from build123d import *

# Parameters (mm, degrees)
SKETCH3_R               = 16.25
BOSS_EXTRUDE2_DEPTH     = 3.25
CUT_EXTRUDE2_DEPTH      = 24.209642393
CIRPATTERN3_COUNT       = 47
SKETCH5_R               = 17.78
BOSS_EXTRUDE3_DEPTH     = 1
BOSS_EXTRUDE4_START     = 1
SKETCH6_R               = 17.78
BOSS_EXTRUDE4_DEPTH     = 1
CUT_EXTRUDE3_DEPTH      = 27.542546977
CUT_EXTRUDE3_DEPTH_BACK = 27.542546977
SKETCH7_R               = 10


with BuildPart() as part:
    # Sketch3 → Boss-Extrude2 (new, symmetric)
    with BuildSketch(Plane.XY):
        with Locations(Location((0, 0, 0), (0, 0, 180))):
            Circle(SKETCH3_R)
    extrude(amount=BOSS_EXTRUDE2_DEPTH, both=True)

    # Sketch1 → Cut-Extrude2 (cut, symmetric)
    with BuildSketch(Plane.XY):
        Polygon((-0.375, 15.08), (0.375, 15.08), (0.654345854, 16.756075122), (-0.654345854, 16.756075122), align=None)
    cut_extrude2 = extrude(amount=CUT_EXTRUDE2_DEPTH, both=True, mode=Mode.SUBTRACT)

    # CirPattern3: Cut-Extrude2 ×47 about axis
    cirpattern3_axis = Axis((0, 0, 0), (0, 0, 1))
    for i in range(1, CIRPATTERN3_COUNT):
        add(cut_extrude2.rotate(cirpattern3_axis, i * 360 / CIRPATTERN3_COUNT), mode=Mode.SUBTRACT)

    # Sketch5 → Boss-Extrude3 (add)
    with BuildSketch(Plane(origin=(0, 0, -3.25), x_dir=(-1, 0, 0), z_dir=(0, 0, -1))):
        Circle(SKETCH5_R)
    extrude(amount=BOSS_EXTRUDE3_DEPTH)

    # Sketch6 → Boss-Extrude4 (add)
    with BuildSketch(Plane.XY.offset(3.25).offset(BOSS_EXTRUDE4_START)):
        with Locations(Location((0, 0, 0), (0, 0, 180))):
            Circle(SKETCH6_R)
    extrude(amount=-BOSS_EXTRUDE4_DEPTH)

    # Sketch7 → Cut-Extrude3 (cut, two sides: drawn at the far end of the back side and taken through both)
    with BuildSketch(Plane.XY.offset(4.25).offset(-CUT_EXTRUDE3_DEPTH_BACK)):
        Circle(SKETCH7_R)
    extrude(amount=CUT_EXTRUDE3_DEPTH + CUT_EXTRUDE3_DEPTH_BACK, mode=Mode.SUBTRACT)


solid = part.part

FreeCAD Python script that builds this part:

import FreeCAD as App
import Part
import Sketcher

V = App.Vector
Q = App.Units.Quantity

doc = App.newDocument("Part")
params = doc.addObject("Spreadsheet::Sheet", "Params")
for row, (alias, value) in enumerate([
    ("sketch1_diameter", "32.5 mm"),
    ("pad1_length", "6.5 mm"),
    ("sketch2_width", "0.75 mm"),
    ("pocket1_length", "48.419285 mm"),
    ("sketch3_diameter", "35.56 mm"),
    ("pad2_length", "1 mm"),
    ("sketch4_diameter", "35.56 mm"),
    ("pad3_length", "1 mm"),
    ("sketch5_diameter", "20 mm"),
], start=1):
    params.set(f"A{row}", alias)
    params.set(f"B{row}", "=" + value)
    params.setAlias(f"B{row}", alias)

body = doc.addObject("PartDesign::Body", "Body")

sketch1 = body.newObject("Sketcher::SketchObject", "Sketch")
sketch1.AttachmentSupport = (doc.getObject("XY_Plane"), [""])
sketch1.MapMode = "FlatFace"
sketch1.addGeometry(Part.Circle(V(0, 0, 0), V(0, 0, 1), 16), False)
sketch1.addConstraint(Sketcher.Constraint("Coincident", 0, 3, -1, 1))
sketch1.addConstraint(Sketcher.Constraint("Diameter", 0, Q("32.5 mm")))
sketch1.setExpression("Constraints[1]", "Params.sketch1_diameter")
pad1 = body.newObject("PartDesign::Pad", "Pad")
pad1.Profile = sketch1
pad1.setExpression("Length", "Params.pad1_length")
pad1.Midplane = True

sketch2 = body.newObject("Sketcher::SketchObject", "Sketch001")
sketch2.AttachmentSupport = (doc.getObject("XY_Plane"), [""])
sketch2.MapMode = "FlatFace"
sketch2.addGeometry(Part.LineSegment(V(-0.4, 15.1, 0), V(0.4, 15.1, 0)), False)
sketch2.addGeometry(Part.LineSegment(V(0.4, 15.1, 0), V(0.7, 16.8, 0)), False)
sketch2.addGeometry(Part.LineSegment(V(0.7, 16.8, 0), V(-0.7, 16.8, 0)), False)
sketch2.addGeometry(Part.LineSegment(V(-0.7, 16.8, 0), V(-0.4, 15.1, 0)), False)
sketch2.addConstraint(Sketcher.Constraint("Coincident", 0, 2, 1, 1))
sketch2.addConstraint(Sketcher.Constraint("Coincident", 1, 2, 2, 1))
sketch2.addConstraint(Sketcher.Constraint("Coincident", 2, 2, 3, 1))
sketch2.addConstraint(Sketcher.Constraint("Coincident", 3, 2, 0, 1))
sketch2.addConstraint(Sketcher.Constraint("Horizontal", 0))
sketch2.addConstraint(Sketcher.Constraint("Horizontal", 2))
sketch2.addConstraint(Sketcher.Constraint("Equal", 1, 3))
sketch2.addConstraint(Sketcher.Constraint("DistanceX", 0, 1, 0, 2, Q("0.75 mm")))
sketch2.addConstraint(Sketcher.Constraint("DistanceY", -1, 1, 0, 2, Q("15.08 mm")))
sketch2.addConstraint(Sketcher.Constraint("DistanceX", -1, 1, 0, 2, Q("0.375 mm")))
sketch2.addConstraint(Sketcher.Constraint("DistanceX", 2, 2, 2, 1, Q("1.308692 mm")))
sketch2.addConstraint(Sketcher.Constraint("Distance", 1, Q("1.699194 mm")))
sketch2.setExpression("Constraints[7]", "Params.sketch2_width")
pocket1 = body.newObject("PartDesign::Pocket", "Pocket")
pocket1.Profile = sketch2
pocket1.setExpression("Length", "Params.pocket1_length")
pocket1.Midplane = True
doc.recompute()

polarpattern = body.newObject("PartDesign::PolarPattern", "PolarPattern")
polarpattern.Originals = [pocket1]
polarpattern.Axis = (doc.getObject("Z_Axis"), [""])
polarpattern.Angle = 360
polarpattern.Occurrences = 47
body.Tip = polarpattern

sketch3 = body.newObject("Sketcher::SketchObject", "Sketch002")
sketch3.AttachmentSupport = (doc.getObject("XY_Plane"), [""])
sketch3.MapMode = "FlatFace"
sketch3.AttachmentOffset = App.Placement(V(0, 0, -3.25), App.Rotation())
sketch3.addGeometry(Part.Circle(V(0, 0, 0), V(0, 0, 1), 18), False)
sketch3.addConstraint(Sketcher.Constraint("Coincident", 0, 3, -1, 1))
sketch3.addConstraint(Sketcher.Constraint("Diameter", 0, Q("35.56 mm")))
sketch3.setExpression("Constraints[1]", "Params.sketch3_diameter")
pad2 = body.newObject("PartDesign::Pad", "Pad001")
pad2.Profile = sketch3
pad2.setExpression("Length", "Params.pad2_length")
pad2.Reversed = True

sketch4 = body.newObject("Sketcher::SketchObject", "Sketch003")
sketch4.AttachmentSupport = (doc.getObject("XY_Plane"), [""])
sketch4.MapMode = "FlatFace"
sketch4.AttachmentOffset = App.Placement(V(0, 0, 4.25), App.Rotation())
sketch4.addGeometry(Part.Circle(V(0, 0, 0), V(0, 0, 1), 18), False)
sketch4.addConstraint(Sketcher.Constraint("Coincident", 0, 3, -1, 1))
sketch4.addConstraint(Sketcher.Constraint("Diameter", 0, Q("35.56 mm")))
sketch4.setExpression("Constraints[1]", "Params.sketch4_diameter")
pad3 = body.newObject("PartDesign::Pad", "Pad002")
pad3.Profile = sketch4
pad3.setExpression("Length", "Params.pad3_length")
pad3.Reversed = True

sketch5 = body.newObject("Sketcher::SketchObject", "Sketch004")
sketch5.AttachmentSupport = (doc.getObject("XY_Plane"), [""])
sketch5.MapMode = "FlatFace"
sketch5.AttachmentOffset = App.Placement(V(0, 0, 4.25), App.Rotation())
sketch5.addGeometry(Part.Circle(V(0, 0, 0), V(0, 0, 1), 10), False)
sketch5.addConstraint(Sketcher.Constraint("Coincident", 0, 3, -1, 1))
sketch5.addConstraint(Sketcher.Constraint("Diameter", 0, Q("20 mm")))
sketch5.setExpression("Constraints[1]", "Params.sketch5_diameter")
pocket2 = body.newObject("PartDesign::Pocket", "Pocket001")
pocket2.Profile = sketch5
pocket2.Type = "ThroughAll"
pocket2.Midplane = True

doc.recompute()
